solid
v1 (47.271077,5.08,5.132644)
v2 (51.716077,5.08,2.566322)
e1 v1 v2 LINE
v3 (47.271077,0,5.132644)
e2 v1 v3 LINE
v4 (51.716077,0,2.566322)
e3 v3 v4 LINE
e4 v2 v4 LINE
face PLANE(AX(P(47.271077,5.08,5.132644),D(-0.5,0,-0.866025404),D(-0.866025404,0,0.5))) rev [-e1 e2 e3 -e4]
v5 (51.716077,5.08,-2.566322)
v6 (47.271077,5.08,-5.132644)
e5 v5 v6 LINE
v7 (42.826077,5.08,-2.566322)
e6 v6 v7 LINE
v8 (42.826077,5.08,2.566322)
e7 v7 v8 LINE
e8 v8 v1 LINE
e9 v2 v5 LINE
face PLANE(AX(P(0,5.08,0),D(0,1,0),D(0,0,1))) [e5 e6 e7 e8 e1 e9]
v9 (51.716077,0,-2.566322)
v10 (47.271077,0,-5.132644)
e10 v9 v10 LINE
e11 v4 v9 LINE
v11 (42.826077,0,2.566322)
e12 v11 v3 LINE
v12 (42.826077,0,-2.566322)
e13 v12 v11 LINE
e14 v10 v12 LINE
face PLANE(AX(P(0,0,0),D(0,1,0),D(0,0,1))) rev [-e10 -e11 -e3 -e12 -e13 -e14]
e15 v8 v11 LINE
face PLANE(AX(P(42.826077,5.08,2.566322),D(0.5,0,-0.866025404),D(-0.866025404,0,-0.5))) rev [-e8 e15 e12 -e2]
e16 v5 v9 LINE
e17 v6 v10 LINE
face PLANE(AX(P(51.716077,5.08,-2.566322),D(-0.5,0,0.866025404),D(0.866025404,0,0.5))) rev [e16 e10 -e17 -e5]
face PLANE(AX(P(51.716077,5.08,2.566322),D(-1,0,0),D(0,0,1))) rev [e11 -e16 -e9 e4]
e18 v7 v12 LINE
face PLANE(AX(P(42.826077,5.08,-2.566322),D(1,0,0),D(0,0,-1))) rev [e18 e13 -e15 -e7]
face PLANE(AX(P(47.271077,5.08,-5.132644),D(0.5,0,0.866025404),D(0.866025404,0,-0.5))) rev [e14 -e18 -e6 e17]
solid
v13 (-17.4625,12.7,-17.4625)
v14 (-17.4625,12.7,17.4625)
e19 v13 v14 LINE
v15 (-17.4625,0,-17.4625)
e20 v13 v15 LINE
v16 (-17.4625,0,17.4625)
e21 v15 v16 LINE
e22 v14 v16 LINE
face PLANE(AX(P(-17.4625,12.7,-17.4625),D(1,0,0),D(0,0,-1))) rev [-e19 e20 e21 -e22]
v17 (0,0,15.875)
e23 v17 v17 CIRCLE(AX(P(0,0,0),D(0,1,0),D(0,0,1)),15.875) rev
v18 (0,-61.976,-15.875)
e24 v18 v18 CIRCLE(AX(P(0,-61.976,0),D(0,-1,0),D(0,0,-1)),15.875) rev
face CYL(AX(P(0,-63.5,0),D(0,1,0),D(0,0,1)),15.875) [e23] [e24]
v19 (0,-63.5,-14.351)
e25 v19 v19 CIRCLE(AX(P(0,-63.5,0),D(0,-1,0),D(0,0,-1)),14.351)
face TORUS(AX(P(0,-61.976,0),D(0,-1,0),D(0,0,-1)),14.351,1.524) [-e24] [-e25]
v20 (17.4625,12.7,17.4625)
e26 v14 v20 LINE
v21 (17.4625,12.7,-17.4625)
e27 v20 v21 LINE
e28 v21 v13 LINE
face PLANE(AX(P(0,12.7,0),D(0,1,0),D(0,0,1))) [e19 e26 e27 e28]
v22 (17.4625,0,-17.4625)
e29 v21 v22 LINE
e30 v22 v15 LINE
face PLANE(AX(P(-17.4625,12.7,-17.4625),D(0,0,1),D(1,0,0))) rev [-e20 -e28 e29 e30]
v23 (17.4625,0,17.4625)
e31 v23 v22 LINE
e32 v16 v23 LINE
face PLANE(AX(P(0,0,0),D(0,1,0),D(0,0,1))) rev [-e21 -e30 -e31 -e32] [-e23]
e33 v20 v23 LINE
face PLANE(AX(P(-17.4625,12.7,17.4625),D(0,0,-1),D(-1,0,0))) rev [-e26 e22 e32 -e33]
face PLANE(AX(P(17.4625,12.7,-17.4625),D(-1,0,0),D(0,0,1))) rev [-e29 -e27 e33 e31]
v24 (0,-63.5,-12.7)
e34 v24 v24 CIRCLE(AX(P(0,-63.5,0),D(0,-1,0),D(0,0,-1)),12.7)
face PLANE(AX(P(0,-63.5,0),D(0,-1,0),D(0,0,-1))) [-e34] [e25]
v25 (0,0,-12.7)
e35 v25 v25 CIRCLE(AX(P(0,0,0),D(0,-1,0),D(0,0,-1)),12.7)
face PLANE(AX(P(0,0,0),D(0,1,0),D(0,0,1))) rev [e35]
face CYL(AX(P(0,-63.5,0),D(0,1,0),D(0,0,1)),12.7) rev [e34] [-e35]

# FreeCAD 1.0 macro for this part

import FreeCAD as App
import Part
import Sketcher
from FreeCAD import Vector
Q = App.Units.Quantity


def edges_at(feature, points):
    """Names of the edges that pass closest to the given points."""
    edges = feature.Shape.Edges
    near = lambda p: min(range(len(edges)), key=lambda i: edges[i].distToShape(Part.Vertex(*p))[0])
    return sorted({f"Edge{near(p) + 1}" for p in points})

doc = App.newDocument("Part")
body = doc.addObject("PartDesign::Body", "Body")

# Sketch on XZ plane
sketch1 = body.newObject("Sketcher::SketchObject", "Sketch")
sketch1.AttachmentSupport = (doc.getObject("XZ_Plane"), [""])
sketch1.MapMode = "FlatFace"
sketch1.addGeometry(Part.LineSegment(Vector(-17, -17, 0), Vector(-17, 17, 0)), False)
sketch1.addGeometry(Part.LineSegment(Vector(-17, 17, 0), Vector(17, 17, 0)), False)
sketch1.addGeometry(Part.LineSegment(Vector(17, 17, 0), Vector(17, -17, 0)), False)
sketch1.addGeometry(Part.LineSegment(Vector(17, -17, 0), Vector(-17, -17, 0)), False)
sketch1.addConstraint(Sketcher.Constraint("Coincident", 0, 2, 1, 1))
sketch1.addConstraint(Sketcher.Constraint("Coincident", 1, 2, 2, 1))
sketch1.addConstraint(Sketcher.Constraint("Coincident", 2, 2, 3, 1))
sketch1.addConstraint(Sketcher.Constraint("Coincident", 3, 2, 0, 1))
sketch1.addConstraint(Sketcher.Constraint("Vertical", 0))
sketch1.addConstraint(Sketcher.Constraint("Horizontal", 1))
sketch1.addConstraint(Sketcher.Constraint("Vertical", 2))
sketch1.addConstraint(Sketcher.Constraint("Horizontal", 3))
sketch1.addConstraint(Sketcher.Constraint("Symmetric", 0, 2, 2, 2, -1, 1))
sketch1.addConstraint(Sketcher.Constraint("Equal", 3, 0))
sketch1.addConstraint(Sketcher.Constraint("DistanceX", 1, 1, 1, 2, Q("1.375 in")))
pad1 = body.newObject("PartDesign::Pad", "Pad")
pad1.Profile = sketch1
pad1.Length = Q("0.5 in")
pad1.Reversed = True

# Sketch on XZ plane
sketch2 = body.newObject("Sketcher::SketchObject", "Sketch001")
sketch2.AttachmentSupport = (doc.getObject("XZ_Plane"), [""])
sketch2.MapMode = "FlatFace"
sketch2.addGeometry(Part.Circle(Vector(0, 0, 0), Vector(0, 0, 1), 16), False)
sketch2.addGeometry(Part.Circle(Vector(0, 0, 0), Vector(0, 0, 1), 13), False)
sketch2.addConstraint(Sketcher.Constraint("Coincident", 0, 3, -1, 1))
sketch2.addConstraint(Sketcher.Constraint("Coincident", 1, 3, -1, 1))
sketch2.addConstraint(Sketcher.Constraint("Diameter", 1, Q("1 in")))
sketch2.addConstraint(Sketcher.Constraint("Diameter", 0, Q("1.25 in")))
pad2 = body.newObject("PartDesign::Pad", "Pad001")
pad2.Profile = sketch2
pad2.Length = Q("2.5 in")
doc.recompute()

fillet = body.newObject("PartDesign::Fillet", "Fillet")
fillet.Base = (pad2, edges_at(pad2, [(0, -63.5, -15.875)]))
fillet.Radius = Q("0.06 in")
body2 = doc.addObject("PartDesign::Body", "Body001")

# Sketch on XZ plane
sketch3 = body2.newObject("Sketcher::SketchObject", "Sketch002")
sketch3.AttachmentSupport = (doc.getObject("XZ_Plane001"), [""])
sketch3.MapMode = "FlatFace"
sketch3.addGeometry(Part.LineSegment(Vector(47, 5, 0), Vector(52, 3, 0)), False)
sketch3.addGeometry(Part.LineSegment(Vector(52, 3, 0), Vector(52, -3, 0)), False)
sketch3.addGeometry(Part.LineSegment(Vector(52, -3, 0), Vector(47, -5, 0)), False)
sketch3.addGeometry(Part.LineSegment(Vector(47, -5, 0), Vector(43, -3, 0)), False)
sketch3.addGeometry(Part.LineSegment(Vector(43, -3, 0), Vector(43, 3, 0)), False)
sketch3.addGeometry(Part.LineSegment(Vector(43, 3, 0), Vector(47, 5, 0)), False)
sketch3.addConstraint(Sketcher.Constraint("Coincident", 0, 2, 1, 1))
sketch3.addConstraint(Sketcher.Constraint("Coincident", 1, 2, 2, 1))
sketch3.addConstraint(Sketcher.Constraint("Coincident", 2, 2, 3, 1))
sketch3.addConstraint(Sketcher.Constraint("Coincident", 3, 2, 4, 1))
sketch3.addConstraint(Sketcher.Constraint("Coincident", 4, 2, 5, 1))
sketch3.addConstraint(Sketcher.Constraint("Coincident", 5, 2, 0, 1))
sketch3.addConstraint(Sketcher.Constraint("Vertical", 1))
sketch3.addConstraint(Sketcher.Constraint("Vertical", 4))
sketch3.addConstraint(Sketcher.Constraint("Symmetric", 2, 2, 5, 2, -1))
sketch3.addConstraint(Sketcher.Constraint("Parallel", 0, 3))
sketch3.addConstraint(Sketcher.Constraint("Parallel", 2, 5))
sketch3.addConstraint(Sketcher.Constraint("Horizontal", 1, 2, 3, 2))
sketch3.addConstraint(Sketcher.Constraint("Horizontal", 0, 2, 4, 2))
sketch3.addConstraint(Sketcher.Constraint("Angle", 0, Q("-30 deg")))
sketch3.addConstraint(Sketcher.Constraint("DistanceX", 3, 2, 1, 2, Q("0.35 in")))
sketch3.addConstraint(Sketcher.Constraint("DistanceY", 1, 2, 1, 1, Q("5.132644 mm")))
sketch3.addConstraint(Sketcher.Constraint("DistanceX", -1, 1, 0, 2, Q("51.716077 mm")))
pad3 = body2.newObject("PartDesign::Pad", "Pad002")
pad3.Profile = sketch3
pad3.Length = Q("0.2 in")
pad3.Reversed = True

doc.recompute()
